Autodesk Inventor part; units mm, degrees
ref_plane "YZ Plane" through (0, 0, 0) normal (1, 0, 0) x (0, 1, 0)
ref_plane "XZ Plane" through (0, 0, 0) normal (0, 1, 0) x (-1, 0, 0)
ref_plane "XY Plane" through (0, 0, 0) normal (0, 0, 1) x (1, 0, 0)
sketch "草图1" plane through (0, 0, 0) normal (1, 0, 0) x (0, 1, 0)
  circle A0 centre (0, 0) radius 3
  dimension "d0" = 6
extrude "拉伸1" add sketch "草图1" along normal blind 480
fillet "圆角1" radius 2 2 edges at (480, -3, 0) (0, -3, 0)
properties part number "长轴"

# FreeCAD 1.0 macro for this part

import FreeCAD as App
import Part
import Sketcher
Q = App.Units.Quantity


def edges_at(feature, points):
    """Names of the edges that pass closest to the given points."""
    edges = feature.Shape.Edges
    near = lambda p: min(range(len(edges)), key=lambda i: edges[i].distToShape(Part.Vertex(*p))[0])
    return sorted({f"Edge{near(p) + 1}" for p in points})

doc = App.newDocument("Part")
body = doc.addObject("PartDesign::Body", "Body")

# Sketch on YZ plane
sketch1 = body.newObject("Sketcher::SketchObject", "Sketch")
sketch1.AttachmentSupport = (doc.getObject("YZ_Plane"), [""])
sketch1.MapMode = "FlatFace"
sketch1.addGeometry(Part.Circle(App.Vector(0, 0, 0), App.Vector(0, 0, 1), 3), False)
sketch1.addConstraint([
    Sketcher.Constraint("Coincident", 0, 3, -1, 1),
    Sketcher.Constraint("Diameter", 0, Q("6 mm")),
])
pad1 = body.newObject("PartDesign::Pad", "Pad")
pad1.Profile = sketch1
pad1.Length = 480
doc.recompute()

fillet = body.newObject("PartDesign::Fillet", "Fillet")
fillet.Base = (pad1, edges_at(pad1, [(480, -3, 0), (0, -3, 0)]))
fillet.Radius = 2

doc.recompute()
